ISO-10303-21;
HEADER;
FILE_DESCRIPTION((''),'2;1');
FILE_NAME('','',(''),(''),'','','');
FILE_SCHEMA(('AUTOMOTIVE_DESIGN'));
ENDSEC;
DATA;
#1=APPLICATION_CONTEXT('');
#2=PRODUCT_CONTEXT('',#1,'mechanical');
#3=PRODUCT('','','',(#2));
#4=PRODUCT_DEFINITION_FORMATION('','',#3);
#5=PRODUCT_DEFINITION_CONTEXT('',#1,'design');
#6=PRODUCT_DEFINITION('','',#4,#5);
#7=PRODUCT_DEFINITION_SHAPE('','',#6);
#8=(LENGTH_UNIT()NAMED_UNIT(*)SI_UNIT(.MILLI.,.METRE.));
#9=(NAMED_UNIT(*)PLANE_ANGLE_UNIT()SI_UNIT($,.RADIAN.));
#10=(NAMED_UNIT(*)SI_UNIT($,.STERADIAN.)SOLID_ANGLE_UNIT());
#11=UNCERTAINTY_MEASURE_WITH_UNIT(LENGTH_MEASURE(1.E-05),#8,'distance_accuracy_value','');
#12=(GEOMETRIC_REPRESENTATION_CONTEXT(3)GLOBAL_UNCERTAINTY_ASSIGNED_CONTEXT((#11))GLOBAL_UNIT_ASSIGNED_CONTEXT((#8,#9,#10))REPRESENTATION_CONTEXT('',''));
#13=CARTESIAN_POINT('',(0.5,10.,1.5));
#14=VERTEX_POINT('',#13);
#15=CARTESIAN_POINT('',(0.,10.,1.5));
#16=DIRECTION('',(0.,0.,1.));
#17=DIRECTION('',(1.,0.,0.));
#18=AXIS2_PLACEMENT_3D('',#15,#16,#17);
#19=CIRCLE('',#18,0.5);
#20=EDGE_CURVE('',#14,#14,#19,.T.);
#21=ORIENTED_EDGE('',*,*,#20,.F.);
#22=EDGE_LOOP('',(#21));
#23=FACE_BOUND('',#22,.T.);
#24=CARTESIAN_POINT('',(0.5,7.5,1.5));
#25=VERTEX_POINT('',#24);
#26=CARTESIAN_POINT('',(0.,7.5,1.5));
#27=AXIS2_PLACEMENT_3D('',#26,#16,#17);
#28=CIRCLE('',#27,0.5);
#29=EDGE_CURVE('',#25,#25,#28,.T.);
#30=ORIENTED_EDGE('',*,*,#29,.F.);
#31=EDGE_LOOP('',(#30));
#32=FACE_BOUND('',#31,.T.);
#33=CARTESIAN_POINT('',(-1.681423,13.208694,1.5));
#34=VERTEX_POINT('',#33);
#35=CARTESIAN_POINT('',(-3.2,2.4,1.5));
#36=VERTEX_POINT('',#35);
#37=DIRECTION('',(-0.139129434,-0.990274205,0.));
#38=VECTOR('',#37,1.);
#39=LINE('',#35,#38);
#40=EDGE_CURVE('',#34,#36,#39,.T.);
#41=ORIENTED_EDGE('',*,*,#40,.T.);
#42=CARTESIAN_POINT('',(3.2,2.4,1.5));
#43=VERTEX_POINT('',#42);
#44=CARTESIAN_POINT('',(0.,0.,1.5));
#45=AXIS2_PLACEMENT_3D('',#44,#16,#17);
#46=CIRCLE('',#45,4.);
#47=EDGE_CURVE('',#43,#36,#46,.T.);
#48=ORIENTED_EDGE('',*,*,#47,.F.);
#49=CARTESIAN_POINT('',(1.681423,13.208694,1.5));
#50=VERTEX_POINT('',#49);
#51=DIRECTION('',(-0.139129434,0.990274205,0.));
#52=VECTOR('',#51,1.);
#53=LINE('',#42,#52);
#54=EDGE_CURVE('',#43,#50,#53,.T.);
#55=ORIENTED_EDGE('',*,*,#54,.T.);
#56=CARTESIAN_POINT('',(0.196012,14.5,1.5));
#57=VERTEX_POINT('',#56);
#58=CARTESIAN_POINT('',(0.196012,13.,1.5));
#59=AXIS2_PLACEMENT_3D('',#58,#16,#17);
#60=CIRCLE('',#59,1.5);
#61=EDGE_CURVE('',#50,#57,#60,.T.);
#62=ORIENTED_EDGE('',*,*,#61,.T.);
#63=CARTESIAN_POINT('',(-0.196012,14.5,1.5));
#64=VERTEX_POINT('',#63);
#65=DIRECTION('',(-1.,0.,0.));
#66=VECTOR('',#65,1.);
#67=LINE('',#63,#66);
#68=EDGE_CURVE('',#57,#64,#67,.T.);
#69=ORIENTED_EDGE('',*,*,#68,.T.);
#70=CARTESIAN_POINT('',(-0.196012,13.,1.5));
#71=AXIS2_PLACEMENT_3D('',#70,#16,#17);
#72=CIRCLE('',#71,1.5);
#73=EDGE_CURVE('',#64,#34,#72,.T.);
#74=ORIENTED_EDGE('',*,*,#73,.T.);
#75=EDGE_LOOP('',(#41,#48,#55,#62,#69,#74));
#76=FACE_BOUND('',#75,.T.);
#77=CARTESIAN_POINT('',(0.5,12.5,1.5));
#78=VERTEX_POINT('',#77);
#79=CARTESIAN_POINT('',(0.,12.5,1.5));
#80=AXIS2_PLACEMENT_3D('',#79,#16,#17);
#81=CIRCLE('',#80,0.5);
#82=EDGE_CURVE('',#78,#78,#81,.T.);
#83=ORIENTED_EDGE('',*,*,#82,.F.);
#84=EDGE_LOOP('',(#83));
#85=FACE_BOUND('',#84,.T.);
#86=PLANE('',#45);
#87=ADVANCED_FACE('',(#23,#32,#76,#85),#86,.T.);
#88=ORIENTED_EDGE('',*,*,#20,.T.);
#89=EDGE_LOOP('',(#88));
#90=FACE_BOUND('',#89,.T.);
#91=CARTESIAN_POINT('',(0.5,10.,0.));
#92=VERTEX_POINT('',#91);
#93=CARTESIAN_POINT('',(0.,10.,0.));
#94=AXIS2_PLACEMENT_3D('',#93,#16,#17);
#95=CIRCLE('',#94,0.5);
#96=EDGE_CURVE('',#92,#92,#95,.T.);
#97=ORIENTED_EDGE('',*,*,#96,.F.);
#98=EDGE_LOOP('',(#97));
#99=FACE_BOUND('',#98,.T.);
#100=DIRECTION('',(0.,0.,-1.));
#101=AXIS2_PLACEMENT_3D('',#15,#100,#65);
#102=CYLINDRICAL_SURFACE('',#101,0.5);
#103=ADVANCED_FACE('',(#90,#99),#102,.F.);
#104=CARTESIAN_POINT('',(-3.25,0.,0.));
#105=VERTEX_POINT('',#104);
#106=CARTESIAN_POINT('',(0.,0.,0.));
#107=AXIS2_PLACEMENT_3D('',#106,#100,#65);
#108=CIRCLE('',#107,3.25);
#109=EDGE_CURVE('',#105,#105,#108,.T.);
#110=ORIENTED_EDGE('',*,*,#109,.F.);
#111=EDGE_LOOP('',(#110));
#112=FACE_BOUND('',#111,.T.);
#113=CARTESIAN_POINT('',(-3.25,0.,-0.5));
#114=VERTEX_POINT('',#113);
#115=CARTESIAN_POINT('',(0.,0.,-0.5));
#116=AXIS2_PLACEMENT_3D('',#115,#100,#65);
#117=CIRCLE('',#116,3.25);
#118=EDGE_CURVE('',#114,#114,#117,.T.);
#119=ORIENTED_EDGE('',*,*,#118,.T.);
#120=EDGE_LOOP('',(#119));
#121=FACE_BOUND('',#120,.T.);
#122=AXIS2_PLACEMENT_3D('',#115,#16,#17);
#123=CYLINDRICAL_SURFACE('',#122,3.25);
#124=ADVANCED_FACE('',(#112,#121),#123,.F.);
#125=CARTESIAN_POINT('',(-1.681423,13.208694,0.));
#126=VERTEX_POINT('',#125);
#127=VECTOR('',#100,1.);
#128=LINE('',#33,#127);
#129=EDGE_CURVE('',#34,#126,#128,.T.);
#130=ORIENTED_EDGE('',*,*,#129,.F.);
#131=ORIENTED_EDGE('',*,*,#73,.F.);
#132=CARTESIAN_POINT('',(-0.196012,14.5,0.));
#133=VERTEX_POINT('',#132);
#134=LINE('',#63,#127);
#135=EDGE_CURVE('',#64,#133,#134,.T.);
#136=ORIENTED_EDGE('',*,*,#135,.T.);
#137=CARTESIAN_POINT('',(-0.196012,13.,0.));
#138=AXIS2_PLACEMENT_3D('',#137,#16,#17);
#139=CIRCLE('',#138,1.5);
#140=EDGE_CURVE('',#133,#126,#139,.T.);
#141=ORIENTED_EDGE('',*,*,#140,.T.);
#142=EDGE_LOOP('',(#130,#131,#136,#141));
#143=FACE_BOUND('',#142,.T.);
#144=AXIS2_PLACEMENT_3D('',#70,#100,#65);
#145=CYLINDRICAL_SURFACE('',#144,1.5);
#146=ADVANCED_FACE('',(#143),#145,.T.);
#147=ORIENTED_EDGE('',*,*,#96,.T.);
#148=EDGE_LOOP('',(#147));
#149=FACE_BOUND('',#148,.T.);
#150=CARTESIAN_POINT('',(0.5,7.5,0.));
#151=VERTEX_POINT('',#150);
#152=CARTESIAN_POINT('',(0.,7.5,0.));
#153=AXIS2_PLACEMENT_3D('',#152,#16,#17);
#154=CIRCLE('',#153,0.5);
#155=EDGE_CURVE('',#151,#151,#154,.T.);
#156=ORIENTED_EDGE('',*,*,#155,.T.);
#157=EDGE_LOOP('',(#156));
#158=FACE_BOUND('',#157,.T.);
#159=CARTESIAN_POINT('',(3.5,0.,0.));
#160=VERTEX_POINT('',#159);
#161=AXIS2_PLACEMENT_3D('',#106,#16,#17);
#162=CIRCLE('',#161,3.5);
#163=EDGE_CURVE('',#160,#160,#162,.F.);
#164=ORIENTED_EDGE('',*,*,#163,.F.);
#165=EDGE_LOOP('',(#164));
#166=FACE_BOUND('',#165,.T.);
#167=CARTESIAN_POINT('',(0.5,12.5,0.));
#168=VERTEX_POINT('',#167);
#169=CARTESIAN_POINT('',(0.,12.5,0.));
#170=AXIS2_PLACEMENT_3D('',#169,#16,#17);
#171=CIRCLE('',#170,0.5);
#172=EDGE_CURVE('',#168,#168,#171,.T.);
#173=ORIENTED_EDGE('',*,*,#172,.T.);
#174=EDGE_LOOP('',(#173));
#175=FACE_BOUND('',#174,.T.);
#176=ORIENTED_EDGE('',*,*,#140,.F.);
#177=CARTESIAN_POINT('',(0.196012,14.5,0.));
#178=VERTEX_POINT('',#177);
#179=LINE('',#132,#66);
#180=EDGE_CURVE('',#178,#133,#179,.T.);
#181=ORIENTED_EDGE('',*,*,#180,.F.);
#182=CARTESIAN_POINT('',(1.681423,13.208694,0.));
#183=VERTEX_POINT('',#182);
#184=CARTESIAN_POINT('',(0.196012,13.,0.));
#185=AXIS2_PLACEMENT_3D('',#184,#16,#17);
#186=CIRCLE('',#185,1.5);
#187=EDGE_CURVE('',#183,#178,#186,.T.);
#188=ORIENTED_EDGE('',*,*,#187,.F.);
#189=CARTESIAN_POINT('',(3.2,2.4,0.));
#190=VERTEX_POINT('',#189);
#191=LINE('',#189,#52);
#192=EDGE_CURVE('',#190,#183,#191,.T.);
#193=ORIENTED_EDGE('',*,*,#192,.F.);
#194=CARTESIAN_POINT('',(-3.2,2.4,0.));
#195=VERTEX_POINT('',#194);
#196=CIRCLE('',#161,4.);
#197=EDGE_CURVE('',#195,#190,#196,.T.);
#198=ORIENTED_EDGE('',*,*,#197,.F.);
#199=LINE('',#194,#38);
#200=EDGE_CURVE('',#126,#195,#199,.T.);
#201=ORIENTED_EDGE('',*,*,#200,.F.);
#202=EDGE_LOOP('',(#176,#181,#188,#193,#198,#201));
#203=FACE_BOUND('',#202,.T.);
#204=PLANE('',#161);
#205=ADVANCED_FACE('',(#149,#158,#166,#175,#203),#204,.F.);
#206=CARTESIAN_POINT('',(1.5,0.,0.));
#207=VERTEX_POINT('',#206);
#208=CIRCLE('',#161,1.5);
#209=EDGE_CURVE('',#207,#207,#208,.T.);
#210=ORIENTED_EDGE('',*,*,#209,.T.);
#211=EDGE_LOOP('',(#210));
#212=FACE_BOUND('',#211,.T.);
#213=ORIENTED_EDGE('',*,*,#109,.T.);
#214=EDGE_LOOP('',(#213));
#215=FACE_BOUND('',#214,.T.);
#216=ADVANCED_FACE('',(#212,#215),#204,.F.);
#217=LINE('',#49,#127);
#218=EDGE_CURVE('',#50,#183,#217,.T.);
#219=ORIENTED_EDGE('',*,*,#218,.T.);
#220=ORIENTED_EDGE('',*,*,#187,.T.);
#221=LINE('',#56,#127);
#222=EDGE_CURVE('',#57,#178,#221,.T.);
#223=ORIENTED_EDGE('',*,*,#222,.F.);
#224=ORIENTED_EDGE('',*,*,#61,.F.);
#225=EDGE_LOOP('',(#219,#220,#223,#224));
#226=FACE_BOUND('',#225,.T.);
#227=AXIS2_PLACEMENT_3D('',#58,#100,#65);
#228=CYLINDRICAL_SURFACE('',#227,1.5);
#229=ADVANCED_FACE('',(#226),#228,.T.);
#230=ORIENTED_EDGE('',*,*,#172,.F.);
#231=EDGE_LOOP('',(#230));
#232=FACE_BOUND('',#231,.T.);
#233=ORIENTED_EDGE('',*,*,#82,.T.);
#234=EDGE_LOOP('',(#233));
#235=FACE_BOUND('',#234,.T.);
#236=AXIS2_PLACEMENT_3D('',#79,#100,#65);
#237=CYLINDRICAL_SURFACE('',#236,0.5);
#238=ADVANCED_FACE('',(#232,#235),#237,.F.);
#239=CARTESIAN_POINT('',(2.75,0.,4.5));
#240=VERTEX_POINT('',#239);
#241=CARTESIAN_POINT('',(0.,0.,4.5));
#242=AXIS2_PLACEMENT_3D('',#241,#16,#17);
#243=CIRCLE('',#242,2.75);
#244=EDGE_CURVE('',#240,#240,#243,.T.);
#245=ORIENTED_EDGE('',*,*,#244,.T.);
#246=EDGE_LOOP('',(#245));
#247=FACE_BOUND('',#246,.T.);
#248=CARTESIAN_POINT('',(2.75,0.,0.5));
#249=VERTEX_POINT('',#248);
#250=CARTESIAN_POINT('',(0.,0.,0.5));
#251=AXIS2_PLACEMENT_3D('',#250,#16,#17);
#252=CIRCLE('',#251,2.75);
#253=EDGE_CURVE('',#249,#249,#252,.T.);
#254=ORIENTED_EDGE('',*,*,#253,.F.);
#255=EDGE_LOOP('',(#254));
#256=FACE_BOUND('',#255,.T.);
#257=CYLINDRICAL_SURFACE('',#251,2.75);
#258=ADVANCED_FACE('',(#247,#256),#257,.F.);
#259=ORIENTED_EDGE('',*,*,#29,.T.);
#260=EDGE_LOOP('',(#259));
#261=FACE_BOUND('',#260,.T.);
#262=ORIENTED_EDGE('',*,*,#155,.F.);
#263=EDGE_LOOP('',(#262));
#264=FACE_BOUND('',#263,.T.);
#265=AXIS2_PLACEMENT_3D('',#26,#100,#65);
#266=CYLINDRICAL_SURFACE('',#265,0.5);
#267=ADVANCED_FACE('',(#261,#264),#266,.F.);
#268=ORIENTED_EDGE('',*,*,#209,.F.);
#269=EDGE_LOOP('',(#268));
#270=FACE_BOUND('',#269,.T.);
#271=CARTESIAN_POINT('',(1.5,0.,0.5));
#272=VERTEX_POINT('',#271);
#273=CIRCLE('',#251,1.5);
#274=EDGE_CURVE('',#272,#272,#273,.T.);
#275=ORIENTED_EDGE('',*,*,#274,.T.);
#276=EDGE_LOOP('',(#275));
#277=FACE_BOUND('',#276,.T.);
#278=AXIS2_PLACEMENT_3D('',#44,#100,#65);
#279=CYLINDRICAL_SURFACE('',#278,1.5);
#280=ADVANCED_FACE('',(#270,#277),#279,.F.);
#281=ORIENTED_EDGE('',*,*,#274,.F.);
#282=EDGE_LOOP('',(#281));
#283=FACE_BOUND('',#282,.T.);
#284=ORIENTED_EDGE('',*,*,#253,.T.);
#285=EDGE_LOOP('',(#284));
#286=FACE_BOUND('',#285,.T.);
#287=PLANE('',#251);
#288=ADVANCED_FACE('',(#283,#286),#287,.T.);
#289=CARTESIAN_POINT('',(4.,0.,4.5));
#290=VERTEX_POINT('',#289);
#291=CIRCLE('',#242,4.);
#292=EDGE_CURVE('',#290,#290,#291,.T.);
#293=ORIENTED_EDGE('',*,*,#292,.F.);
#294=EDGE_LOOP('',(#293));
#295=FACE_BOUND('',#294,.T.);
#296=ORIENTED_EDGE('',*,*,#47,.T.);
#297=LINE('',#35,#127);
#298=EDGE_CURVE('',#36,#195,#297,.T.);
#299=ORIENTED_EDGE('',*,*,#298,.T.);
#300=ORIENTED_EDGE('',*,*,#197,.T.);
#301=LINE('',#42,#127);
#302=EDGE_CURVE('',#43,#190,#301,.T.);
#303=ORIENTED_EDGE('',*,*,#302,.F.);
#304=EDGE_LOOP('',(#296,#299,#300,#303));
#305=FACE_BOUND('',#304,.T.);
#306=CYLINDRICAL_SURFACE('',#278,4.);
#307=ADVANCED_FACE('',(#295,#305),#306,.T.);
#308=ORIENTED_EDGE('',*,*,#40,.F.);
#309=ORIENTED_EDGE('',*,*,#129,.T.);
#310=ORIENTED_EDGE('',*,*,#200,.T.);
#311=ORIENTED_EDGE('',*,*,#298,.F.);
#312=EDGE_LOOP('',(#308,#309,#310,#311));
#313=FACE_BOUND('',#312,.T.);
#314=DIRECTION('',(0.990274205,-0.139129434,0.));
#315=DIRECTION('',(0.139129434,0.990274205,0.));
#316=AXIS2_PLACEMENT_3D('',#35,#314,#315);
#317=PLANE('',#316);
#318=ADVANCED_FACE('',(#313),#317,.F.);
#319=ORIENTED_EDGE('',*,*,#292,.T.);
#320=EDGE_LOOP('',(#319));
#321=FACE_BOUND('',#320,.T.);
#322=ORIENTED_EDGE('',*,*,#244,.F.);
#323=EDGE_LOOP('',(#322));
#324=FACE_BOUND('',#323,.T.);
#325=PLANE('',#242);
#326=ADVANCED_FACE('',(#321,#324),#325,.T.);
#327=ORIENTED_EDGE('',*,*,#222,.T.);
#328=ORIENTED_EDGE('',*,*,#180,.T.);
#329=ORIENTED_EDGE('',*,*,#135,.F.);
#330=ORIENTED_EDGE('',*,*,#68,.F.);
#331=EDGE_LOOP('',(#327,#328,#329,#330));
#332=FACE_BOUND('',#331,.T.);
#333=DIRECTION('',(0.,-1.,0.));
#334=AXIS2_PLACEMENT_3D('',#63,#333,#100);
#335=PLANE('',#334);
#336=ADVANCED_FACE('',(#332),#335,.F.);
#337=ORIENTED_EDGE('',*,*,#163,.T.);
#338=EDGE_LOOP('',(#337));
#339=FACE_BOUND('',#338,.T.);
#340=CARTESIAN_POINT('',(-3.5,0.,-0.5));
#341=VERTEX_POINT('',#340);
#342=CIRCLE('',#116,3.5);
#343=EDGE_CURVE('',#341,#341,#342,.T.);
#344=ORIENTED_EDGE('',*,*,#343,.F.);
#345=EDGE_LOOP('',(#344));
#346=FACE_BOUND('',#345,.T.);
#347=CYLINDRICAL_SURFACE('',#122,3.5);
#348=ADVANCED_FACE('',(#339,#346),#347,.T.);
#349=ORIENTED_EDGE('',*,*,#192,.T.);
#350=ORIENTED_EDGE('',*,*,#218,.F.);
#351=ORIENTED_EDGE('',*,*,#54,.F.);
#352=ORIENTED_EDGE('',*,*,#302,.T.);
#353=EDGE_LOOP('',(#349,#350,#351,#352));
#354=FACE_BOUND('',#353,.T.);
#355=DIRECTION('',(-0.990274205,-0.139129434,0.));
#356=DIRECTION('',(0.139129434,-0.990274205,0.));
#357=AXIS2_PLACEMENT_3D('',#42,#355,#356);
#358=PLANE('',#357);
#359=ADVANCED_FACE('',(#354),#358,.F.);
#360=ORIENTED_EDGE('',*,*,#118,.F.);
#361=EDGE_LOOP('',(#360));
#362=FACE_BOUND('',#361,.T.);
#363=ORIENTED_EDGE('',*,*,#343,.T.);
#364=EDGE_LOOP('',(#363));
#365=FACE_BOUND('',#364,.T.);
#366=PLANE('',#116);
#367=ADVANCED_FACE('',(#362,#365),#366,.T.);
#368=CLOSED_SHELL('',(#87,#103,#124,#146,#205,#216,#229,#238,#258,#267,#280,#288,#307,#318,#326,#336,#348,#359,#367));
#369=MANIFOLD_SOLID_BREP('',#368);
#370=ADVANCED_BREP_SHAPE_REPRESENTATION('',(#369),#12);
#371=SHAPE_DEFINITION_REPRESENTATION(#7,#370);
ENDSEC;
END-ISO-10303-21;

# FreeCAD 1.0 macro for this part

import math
import FreeCAD as App
import Part
import Sketcher
Q = App.Units.Quantity

doc = App.newDocument("Part")
params = doc.addObject("Spreadsheet::Sheet", "Params")
for row, (alias, value) in enumerate([
    ("sketch1_diameter", "3 mm"),
    ("sketch1_diameter2", "1 mm"),
    ("sketch1_radius", "4 mm"),
    ("pad1_length", "1.5 mm"),
    ("sketch2_diameter", "8 mm"),
    ("pad2_length", "3 mm"),
    ("sketch3_diameter", "7 mm"),
    ("sketch3_diameter2", "6.5 mm"),
    ("pad3_length", "0.5 mm"),
    ("sketch4_diameter", "5.5 mm"),
    ("pocket1_length", "4 mm"),
], start=1):
    params.set(f"A{row}", alias)
    params.set(f"B{row}", "=" + value)
    params.setAlias(f"B{row}", alias)

body = doc.addObject("PartDesign::Body", "Body")

# Sketch on XY plane
sketch1 = body.newObject("Sketcher::SketchObject", "Sketch")
sketch1.AttachmentSupport = (doc.getObject("XY_Plane"), [""])
sketch1.MapMode = "FlatFace"
sketch1.addGeometry(Part.LineSegment(App.Vector(-1.681423, 13.208694, 0), App.Vector(-3.2, 2.4, 0)), False)
sketch1.addGeometry(Part.ArcOfCircle(Part.Circle(App.Vector(0, 0, 0), App.Vector(0, 0, 1), 4), math.radians(143.130102), math.radians(396.869898)), False)
sketch1.addGeometry(Part.LineSegment(App.Vector(3.2, 2.4, 0), App.Vector(1.681423, 13.208694, 0)), False)
sketch1.addGeometry(Part.ArcOfCircle(Part.Circle(App.Vector(0.196012, 13, 0), App.Vector(0, 0, 1), 1.5), math.radians(7.997473), math.radians(90)), False)
sketch1.addGeometry(Part.LineSegment(App.Vector(0.196012, 14.5, 0), App.Vector(-0.196012, 14.5, 0)), False)
sketch1.addGeometry(Part.ArcOfCircle(Part.Circle(App.Vector(-0.196012, 13, 0), App.Vector(0, 0, 1), 1.5), math.radians(90), math.radians(172.002527)), False)
sketch1.addGeometry(Part.Circle(App.Vector(0, 0, 0), App.Vector(0, 0, 1), 1.5), False)
sketch1.addGeometry(Part.Circle(App.Vector(0, 7.5, 0), App.Vector(0, 0, 1), 0.5), False)
sketch1.addGeometry(Part.Circle(App.Vector(0, 10, 0), App.Vector(0, 0, 1), 0.5), False)
sketch1.addGeometry(Part.Circle(App.Vector(0, 12.5, 0), App.Vector(0, 0, 1), 0.5), False)
sketch1.addConstraint(Sketcher.Constraint("Coincident", 0, 2, 1, 1))
sketch1.addConstraint(Sketcher.Constraint("Coincident", 1, 2, 2, 1))
sketch1.addConstraint(Sketcher.Constraint("Tangent", 2, 2, 3, 1))
sketch1.addConstraint(Sketcher.Constraint("Tangent", 3, 2, 4, 1))
sketch1.addConstraint(Sketcher.Constraint("Tangent", 4, 2, 5, 1))
sketch1.addConstraint(Sketcher.Constraint("Tangent", 5, 2, 0, 1))
sketch1.addConstraint(Sketcher.Constraint("Horizontal", 4))
sketch1.addConstraint(Sketcher.Constraint("Coincident", 1, 3, -1, 1))
sketch1.addConstraint(Sketcher.Constraint("Coincident", 6, 3, -1, 1))
sketch1.addConstraint(Sketcher.Constraint("Equal", 3, 5))
sketch1.addConstraint(Sketcher.Constraint("Equal", 5, 6))
sketch1.addConstraint(Sketcher.Constraint("Equal", 7, 8))
sketch1.addConstraint(Sketcher.Constraint("Equal", 8, 9))
sketch1.addConstraint(Sketcher.Constraint("Symmetric", 2, 2, 5, 2, -2))
sketch1.addConstraint(Sketcher.Constraint("PointOnObject", 7, 3, -2))
sketch1.addConstraint(Sketcher.Constraint("PointOnObject", 8, 3, -2))
sketch1.addConstraint(Sketcher.Constraint("PointOnObject", 9, 3, -2))
sketch1.addConstraint(Sketcher.Constraint("Diameter", 6, Q("3 mm")))
sketch1.addConstraint(Sketcher.Constraint("Diameter", 7, Q("1 mm")))
sketch1.addConstraint(Sketcher.Constraint("Radius", 1, Q("4 mm")))
sketch1.addConstraint(Sketcher.Constraint("DistanceY", -1, 1, 3, 3, Q("13 mm")))
sketch1.addConstraint(Sketcher.Constraint("DistanceY", -1, 1, 8, 3, Q("10 mm")))
sketch1.addConstraint(Sketcher.Constraint("DistanceY", 7, 3, 9, 3, Q("5 mm")))
sketch1.addConstraint(Sketcher.Constraint("DistanceY", 9, 3, 3, 2, Q("2 mm")))
sketch1.addConstraint(Sketcher.Constraint("DistanceX", 0, 2, -1, 1, Q("3.2 mm")))
sketch1.addConstraint(Sketcher.Constraint("Distance", 0, Q("10.91485 mm")))
sketch1.setExpression("Constraints[17]", "Params.sketch1_diameter")
sketch1.setExpression("Constraints[18]", "Params.sketch1_diameter2")
sketch1.setExpression("Constraints[19]", "Params.sketch1_radius")
pad1 = body.newObject("PartDesign::Pad", "Pad")
pad1.Profile = sketch1
pad1.setExpression("Length", "Params.pad1_length")

# Sketch on XY plane
sketch2 = body.newObject("Sketcher::SketchObject", "Sketch001")
sketch2.AttachmentSupport = (doc.getObject("XY_Plane"), [""])
sketch2.MapMode = "FlatFace"
sketch2.AttachmentOffset = App.Placement(App.Vector(0, 0, 1.5), App.Rotation())
sketch2.addGeometry(Part.Circle(App.Vector(0, 0, 0), App.Vector(0, 0, 1), 4), False)
sketch2.addConstraint(Sketcher.Constraint("Coincident", 0, 3, -1, 1))
sketch2.addConstraint(Sketcher.Constraint("Diameter", 0, Q("8 mm")))
sketch2.setExpression("Constraints[1]", "Params.sketch2_diameter")
pad2 = body.newObject("PartDesign::Pad", "Pad001")
pad2.Profile = sketch2
pad2.setExpression("Length", "Params.pad2_length")

# Sketch on XY plane
sketch3 = body.newObject("Sketcher::SketchObject", "Sketch002")
sketch3.AttachmentSupport = (doc.getObject("XY_Plane"), [""])
sketch3.MapMode = "FlatFace"
sketch3.addGeometry(Part.Circle(App.Vector(0, 0, 0), App.Vector(0, 0, 1), 3.5), False)
sketch3.addGeometry(Part.Circle(App.Vector(0, 0, 0), App.Vector(0, 0, 1), 3.25), False)
sketch3.addConstraint(Sketcher.Constraint("Coincident", 0, 3, -1, 1))
sketch3.addConstraint(Sketcher.Constraint("Coincident", 1, 3, -1, 1))
sketch3.addConstraint(Sketcher.Constraint("Diameter", 0, Q("7 mm")))
sketch3.addConstraint(Sketcher.Constraint("Diameter", 1, Q("6.5 mm")))
sketch3.setExpression("Constraints[2]", "Params.sketch3_diameter")
sketch3.setExpression("Constraints[3]", "Params.sketch3_diameter2")
pad3 = body.newObject("PartDesign::Pad", "Pad002")
pad3.Profile = sketch3
pad3.setExpression("Length", "Params.pad3_length")
pad3.Reversed = True

# Sketch on XY plane
sketch4 = body.newObject("Sketcher::SketchObject", "Sketch003")
sketch4.AttachmentSupport = (doc.getObject("XY_Plane"), [""])
sketch4.MapMode = "FlatFace"
sketch4.AttachmentOffset = App.Placement(App.Vector(0, 0, 4.5), App.Rotation())
sketch4.addGeometry(Part.Circle(App.Vector(0, 0, 0), App.Vector(0, 0, 1), 2.75), False)
sketch4.addConstraint(Sketcher.Constraint("Coincident", 0, 3, -1, 1))
sketch4.addConstraint(Sketcher.Constraint("Diameter", 0, Q("5.5 mm")))
sketch4.setExpression("Constraints[1]", "Params.sketch4_diameter")
pocket1 = body.newObject("PartDesign::Pocket", "Pocket")
pocket1.Profile = sketch4
pocket1.setExpression("Length", "Params.pocket1_length")

doc.recompute()
